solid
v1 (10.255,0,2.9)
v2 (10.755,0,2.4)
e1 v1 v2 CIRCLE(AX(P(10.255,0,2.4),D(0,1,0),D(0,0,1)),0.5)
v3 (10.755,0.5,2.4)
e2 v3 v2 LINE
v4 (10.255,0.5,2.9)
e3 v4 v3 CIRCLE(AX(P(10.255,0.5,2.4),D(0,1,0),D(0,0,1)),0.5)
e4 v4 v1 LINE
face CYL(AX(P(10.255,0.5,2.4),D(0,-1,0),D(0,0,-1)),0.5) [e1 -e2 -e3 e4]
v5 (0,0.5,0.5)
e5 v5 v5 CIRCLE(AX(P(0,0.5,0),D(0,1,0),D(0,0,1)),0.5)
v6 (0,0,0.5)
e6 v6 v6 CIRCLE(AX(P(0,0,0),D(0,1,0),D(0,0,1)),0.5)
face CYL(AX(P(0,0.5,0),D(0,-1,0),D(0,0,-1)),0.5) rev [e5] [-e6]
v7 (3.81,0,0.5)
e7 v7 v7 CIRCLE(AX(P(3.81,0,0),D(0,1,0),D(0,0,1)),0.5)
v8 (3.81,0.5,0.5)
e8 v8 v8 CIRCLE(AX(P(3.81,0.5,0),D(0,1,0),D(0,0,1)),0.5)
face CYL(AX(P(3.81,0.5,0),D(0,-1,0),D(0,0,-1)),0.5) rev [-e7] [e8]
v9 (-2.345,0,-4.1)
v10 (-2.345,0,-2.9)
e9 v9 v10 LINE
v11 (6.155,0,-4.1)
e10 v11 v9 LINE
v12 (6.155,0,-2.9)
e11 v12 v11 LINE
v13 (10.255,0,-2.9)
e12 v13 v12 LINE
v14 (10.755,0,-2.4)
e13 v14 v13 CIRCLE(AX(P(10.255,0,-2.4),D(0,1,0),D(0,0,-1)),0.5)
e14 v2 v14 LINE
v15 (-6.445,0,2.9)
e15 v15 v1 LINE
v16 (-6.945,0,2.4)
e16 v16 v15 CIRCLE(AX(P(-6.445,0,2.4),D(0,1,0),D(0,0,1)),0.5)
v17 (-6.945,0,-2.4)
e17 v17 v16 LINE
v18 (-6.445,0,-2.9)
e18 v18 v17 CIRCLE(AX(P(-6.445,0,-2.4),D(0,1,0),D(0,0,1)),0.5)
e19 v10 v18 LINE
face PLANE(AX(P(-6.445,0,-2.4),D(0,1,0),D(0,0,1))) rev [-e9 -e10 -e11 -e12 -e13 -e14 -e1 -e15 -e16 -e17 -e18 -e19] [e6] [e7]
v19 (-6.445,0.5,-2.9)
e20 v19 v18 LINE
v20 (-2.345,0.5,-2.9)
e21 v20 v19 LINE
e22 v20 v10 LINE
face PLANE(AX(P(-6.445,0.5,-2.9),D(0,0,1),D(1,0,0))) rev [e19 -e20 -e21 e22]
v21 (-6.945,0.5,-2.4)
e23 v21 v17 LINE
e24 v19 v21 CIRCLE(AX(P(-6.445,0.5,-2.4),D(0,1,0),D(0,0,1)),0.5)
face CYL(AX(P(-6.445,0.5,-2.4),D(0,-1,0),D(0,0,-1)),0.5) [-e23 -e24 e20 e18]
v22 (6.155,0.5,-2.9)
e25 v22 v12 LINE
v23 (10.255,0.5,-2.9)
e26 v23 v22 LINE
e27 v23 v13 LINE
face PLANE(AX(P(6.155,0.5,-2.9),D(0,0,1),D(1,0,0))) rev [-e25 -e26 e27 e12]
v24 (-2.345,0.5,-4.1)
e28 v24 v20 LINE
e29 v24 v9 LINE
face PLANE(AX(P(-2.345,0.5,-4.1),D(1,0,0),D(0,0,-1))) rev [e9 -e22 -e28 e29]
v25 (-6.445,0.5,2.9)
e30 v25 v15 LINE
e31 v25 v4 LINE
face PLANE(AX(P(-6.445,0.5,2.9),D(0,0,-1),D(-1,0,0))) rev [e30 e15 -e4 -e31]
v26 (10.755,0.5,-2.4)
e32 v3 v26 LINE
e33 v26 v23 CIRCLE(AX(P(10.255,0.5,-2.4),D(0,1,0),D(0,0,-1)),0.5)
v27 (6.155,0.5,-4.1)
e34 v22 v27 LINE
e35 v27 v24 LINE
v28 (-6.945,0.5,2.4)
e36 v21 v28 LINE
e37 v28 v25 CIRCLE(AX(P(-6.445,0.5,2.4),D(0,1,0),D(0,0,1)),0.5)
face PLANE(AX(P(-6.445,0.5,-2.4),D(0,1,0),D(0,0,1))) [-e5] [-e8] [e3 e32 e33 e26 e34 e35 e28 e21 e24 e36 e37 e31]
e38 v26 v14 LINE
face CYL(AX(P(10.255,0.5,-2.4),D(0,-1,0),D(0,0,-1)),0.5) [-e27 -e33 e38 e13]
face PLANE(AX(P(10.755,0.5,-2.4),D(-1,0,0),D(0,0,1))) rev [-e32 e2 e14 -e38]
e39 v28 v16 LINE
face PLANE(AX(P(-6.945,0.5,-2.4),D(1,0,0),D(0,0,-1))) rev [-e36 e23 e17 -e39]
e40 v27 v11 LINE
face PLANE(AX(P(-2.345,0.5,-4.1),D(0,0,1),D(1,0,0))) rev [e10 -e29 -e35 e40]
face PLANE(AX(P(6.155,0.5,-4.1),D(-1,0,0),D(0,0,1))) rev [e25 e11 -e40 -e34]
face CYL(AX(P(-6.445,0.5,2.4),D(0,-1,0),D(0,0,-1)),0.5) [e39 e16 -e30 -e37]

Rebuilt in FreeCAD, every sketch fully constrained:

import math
import FreeCAD as App
import Part
import Sketcher
Q = App.Units.Quantity

doc = App.newDocument("Part")
params = doc.addObject("Spreadsheet::Sheet", "Params")
for row, (alias, value) in enumerate([
    ("sketch1_diameter", "1 mm"),
    ("sketch1_width", "4.1 mm"),
    ("sketch1_width2", "8.5 mm"),
    ("sketch1_height", "1.2 mm"),
    ("sketch1_height2", "4.8 mm"),
    ("pad1_length", "0.5 mm"),
], start=1):
    params.set(f"A{row}", alias)
    params.set(f"B{row}", "=" + value)
    params.setAlias(f"B{row}", alias)

body = doc.addObject("PartDesign::Body", "Body")

# Sketch on XZ plane
sketch1 = body.newObject("Sketcher::SketchObject", "Sketch")
sketch1.AttachmentSupport = (doc.getObject("XZ_Plane"), [""])
sketch1.MapMode = "FlatFace"
sketch1.addGeometry(Part.LineSegment(App.Vector(10.26, -2.9, 0), App.Vector(6.16, -2.9, 0)), False)
sketch1.addGeometry(Part.LineSegment(App.Vector(6.16, -2.9, 0), App.Vector(6.16, -4.1, 0)), False)
sketch1.addGeometry(Part.LineSegment(App.Vector(6.16, -4.1, 0), App.Vector(-2.35, -4.1, 0)), False)
sketch1.addGeometry(Part.LineSegment(App.Vector(-2.35, -4.1, 0), App.Vector(-2.35, -2.9, 0)), False)
sketch1.addGeometry(Part.LineSegment(App.Vector(-2.35, -2.9, 0), App.Vector(-6.45, -2.9, 0)), False)
sketch1.addGeometry(Part.ArcOfCircle(Part.Circle(App.Vector(-6.45, -2.4, 0), App.Vector(0, 0, 1), 0.5), math.radians(180), math.radians(270)), False)
sketch1.addGeometry(Part.LineSegment(App.Vector(-6.95, -2.4, 0), App.Vector(-6.95, 2.4, 0)), False)
sketch1.addGeometry(Part.ArcOfCircle(Part.Circle(App.Vector(-6.45, 2.4, 0), App.Vector(0, 0, 1), 0.5), math.radians(90), math.radians(180)), False)
sketch1.addGeometry(Part.LineSegment(App.Vector(-6.45, 2.9, 0), App.Vector(10.26, 2.9, 0)), False)
sketch1.addGeometry(Part.ArcOfCircle(Part.Circle(App.Vector(10.26, 2.4, 0), App.Vector(0, 0, 1), 0.5), math.radians(0), math.radians(90)), False)
sketch1.addGeometry(Part.LineSegment(App.Vector(10.76, 2.4, 0), App.Vector(10.76, -2.4, 0)), False)
sketch1.addGeometry(Part.ArcOfCircle(Part.Circle(App.Vector(10.26, -2.4, 0), App.Vector(0, 0, 1), 0.5), math.radians(-90), math.radians(0)), False)
sketch1.addGeometry(Part.Circle(App.Vector(3.81, 0, 0), App.Vector(0, 0, 1), 0.5), False)
sketch1.addGeometry(Part.Circle(App.Vector(0, 0, 0), App.Vector(0, 0, 1), 0.5), False)
sketch1.addConstraint(Sketcher.Constraint("Coincident", 0, 2, 1, 1))
sketch1.addConstraint(Sketcher.Constraint("Coincident", 1, 2, 2, 1))
sketch1.addConstraint(Sketcher.Constraint("Coincident", 2, 2, 3, 1))
sketch1.addConstraint(Sketcher.Constraint("Coincident", 3, 2, 4, 1))
sketch1.addConstraint(Sketcher.Constraint("Tangent", 4, 2, 5, 2))
sketch1.addConstraint(Sketcher.Constraint("Tangent", 5, 1, 6, 1))
sketch1.addConstraint(Sketcher.Constraint("Tangent", 6, 2, 7, 2))
sketch1.addConstraint(Sketcher.Constraint("Tangent", 7, 1, 8, 1))
sketch1.addConstraint(Sketcher.Constraint("Tangent", 8, 2, 9, 2))
sketch1.addConstraint(Sketcher.Constraint("Tangent", 9, 1, 10, 1))
sketch1.addConstraint(Sketcher.Constraint("Tangent", 10, 2, 11, 2))
sketch1.addConstraint(Sketcher.Constraint("Tangent", 11, 1, 0, 1))
sketch1.addConstraint(Sketcher.Constraint("Horizontal", 0))
sketch1.addConstraint(Sketcher.Constraint("Vertical", 1))
sketch1.addConstraint(Sketcher.Constraint("Horizontal", 2))
sketch1.addConstraint(Sketcher.Constraint("Vertical", 3))
sketch1.addConstraint(Sketcher.Constraint("Horizontal", 4))
sketch1.addConstraint(Sketcher.Constraint("Vertical", 6))
sketch1.addConstraint(Sketcher.Constraint("Horizontal", 8))
sketch1.addConstraint(Sketcher.Constraint("Vertical", 10))
sketch1.addConstraint(Sketcher.Constraint("Coincident", 13, 3, -1, 1))
sketch1.addConstraint(Sketcher.Constraint("Equal", 5, 7))
sketch1.addConstraint(Sketcher.Constraint("Equal", 7, 9))
sketch1.addConstraint(Sketcher.Constraint("Equal", 9, 11))
sketch1.addConstraint(Sketcher.Constraint("Equal", 11, 12))
sketch1.addConstraint(Sketcher.Constraint("Equal", 12, 13))
sketch1.addConstraint(Sketcher.Constraint("PointOnObject", 12, 3, -1))
sketch1.addConstraint(Sketcher.Constraint("Horizontal", 5, 3, 11, 3))
sketch1.addConstraint(Sketcher.Constraint("Equal", 0, 4))
sketch1.addConstraint(Sketcher.Constraint("Diameter", 12, Q("1 mm")))
sketch1.addConstraint(Sketcher.Constraint("DistanceX", 0, 2, 0, 1, Q("4.1 mm")))
sketch1.addConstraint(Sketcher.Constraint("DistanceX", 2, 2, 2, 1, Q("8.5 mm")))
sketch1.addConstraint(Sketcher.Constraint("DistanceY", 1, 2, 1, 1, Q("1.2 mm")))
sketch1.addConstraint(Sketcher.Constraint("DistanceY", 6, 1, 6, 2, Q("4.8 mm")))
sketch1.addConstraint(Sketcher.Constraint("DistanceY", 5, 3, -1, 1, Q("2.4 mm")))
sketch1.addConstraint(Sketcher.Constraint("DistanceX", -1, 1, 12, 3, Q("3.81 mm")))
sketch1.addConstraint(Sketcher.Constraint("DistanceX", 5, 3, -1, 1, Q("6.445 mm")))
sketch1.setExpression("Constraints[29]", "Params.sketch1_diameter")
sketch1.setExpression("Constraints[30]", "Params.sketch1_width")
sketch1.setExpression("Constraints[31]", "Params.sketch1_width2")
sketch1.setExpression("Constraints[32]", "Params.sketch1_height")
sketch1.setExpression("Constraints[33]", "Params.sketch1_height2")
pad1 = body.newObject("PartDesign::Pad", "Pad")
pad1.Profile = sketch1
pad1.setExpression("Length", "Params.pad1_length")
pad1.Reversed = True

doc.recompute()
